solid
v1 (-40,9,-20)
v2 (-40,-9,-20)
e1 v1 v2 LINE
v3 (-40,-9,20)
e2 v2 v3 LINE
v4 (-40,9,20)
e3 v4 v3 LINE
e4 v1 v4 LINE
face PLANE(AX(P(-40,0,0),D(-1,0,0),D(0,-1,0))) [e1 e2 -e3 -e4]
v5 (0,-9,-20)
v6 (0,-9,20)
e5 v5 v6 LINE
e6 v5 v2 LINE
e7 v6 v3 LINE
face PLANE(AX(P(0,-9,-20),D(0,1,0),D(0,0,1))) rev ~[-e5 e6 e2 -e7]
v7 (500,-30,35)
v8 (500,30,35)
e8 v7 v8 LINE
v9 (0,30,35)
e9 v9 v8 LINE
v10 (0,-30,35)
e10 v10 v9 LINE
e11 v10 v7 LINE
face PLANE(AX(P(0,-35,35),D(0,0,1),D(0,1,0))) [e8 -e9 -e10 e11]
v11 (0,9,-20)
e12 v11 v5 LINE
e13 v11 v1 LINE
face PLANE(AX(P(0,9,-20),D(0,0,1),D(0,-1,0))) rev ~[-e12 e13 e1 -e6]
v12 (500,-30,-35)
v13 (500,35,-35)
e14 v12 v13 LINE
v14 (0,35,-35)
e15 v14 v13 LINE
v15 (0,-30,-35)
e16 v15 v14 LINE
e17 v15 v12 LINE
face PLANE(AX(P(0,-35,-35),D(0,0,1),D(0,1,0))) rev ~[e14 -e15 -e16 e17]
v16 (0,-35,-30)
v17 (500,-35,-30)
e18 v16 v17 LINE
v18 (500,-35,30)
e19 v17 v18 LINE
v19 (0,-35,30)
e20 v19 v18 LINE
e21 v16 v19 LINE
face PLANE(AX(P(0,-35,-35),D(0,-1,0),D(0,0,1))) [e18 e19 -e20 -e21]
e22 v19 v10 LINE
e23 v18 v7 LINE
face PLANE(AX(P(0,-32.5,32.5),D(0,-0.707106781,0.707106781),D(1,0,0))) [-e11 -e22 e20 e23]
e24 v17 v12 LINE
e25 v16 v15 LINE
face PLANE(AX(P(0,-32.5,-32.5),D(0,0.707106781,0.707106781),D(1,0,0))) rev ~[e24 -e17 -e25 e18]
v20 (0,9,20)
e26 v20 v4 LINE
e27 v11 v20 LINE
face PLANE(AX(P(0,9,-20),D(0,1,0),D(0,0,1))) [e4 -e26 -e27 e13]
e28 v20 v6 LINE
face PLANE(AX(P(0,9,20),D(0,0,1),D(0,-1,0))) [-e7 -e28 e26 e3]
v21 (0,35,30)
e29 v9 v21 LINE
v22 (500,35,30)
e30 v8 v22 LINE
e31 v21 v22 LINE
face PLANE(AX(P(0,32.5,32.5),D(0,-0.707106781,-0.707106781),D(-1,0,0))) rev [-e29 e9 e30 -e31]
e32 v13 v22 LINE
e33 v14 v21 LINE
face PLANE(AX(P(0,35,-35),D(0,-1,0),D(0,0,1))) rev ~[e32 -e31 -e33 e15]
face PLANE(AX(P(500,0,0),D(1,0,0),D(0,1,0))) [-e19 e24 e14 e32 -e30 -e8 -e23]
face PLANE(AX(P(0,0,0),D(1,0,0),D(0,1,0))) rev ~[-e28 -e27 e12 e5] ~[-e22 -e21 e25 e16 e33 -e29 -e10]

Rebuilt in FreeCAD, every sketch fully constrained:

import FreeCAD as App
import Part
import Sketcher
Q = App.Units.Quantity


def edges_at(feature, points):
    """Names of the edges that pass closest to the given points."""
    edges = feature.Shape.Edges
    near = lambda p: min(range(len(edges)), key=lambda i: edges[i].distToShape(Part.Vertex(*p))[0])
    return sorted({f"Edge{near(p) + 1}" for p in points})


def add_polygon(sketch, points):
    """Adds a closed chain of lines whose ends are joined by coincident constraints."""
    first, n = sketch.GeometryCount, len(points)
    for a, b in zip(points, points[1:] + points[:1]):
        sketch.addGeometry(Part.LineSegment(App.Vector(*a, 0), App.Vector(*b, 0)), False)
    for i in range(n):
        sketch.addConstraint(Sketcher.Constraint("Coincident", first + i, 2, first + (i + 1) % n, 1))

doc = App.newDocument("Part")
params = doc.addObject("Spreadsheet::Sheet", "Params")
for row, (alias, value) in enumerate([
    ("sketch1_width", "70 mm"),
    ("pad1_length", "500 mm"),
    ("sketch2_width", "18 mm"),
    ("sketch2_height", "40 mm"),
    ("pad2_length", "40 mm"),
    ("chamfer_size", "5 mm"),
], start=1):
    params.set(f"A{row}", alias)
    params.set(f"B{row}", "=" + value)
    params.setAlias(f"B{row}", alias)

body = doc.addObject("PartDesign::Body", "Body")

# Sketch on YZ plane
sketch1 = body.newObject("Sketcher::SketchObject", "Sketch")
sketch1.AttachmentSupport = (doc.getObject("YZ_Plane"), [""])
sketch1.MapMode = "FlatFace"
add_polygon(sketch1, [(-35, 35), (-35, -35), (35, -35), (35, 35)])  # lines 0-3
sketch1.addConstraint([
    Sketcher.Constraint("Vertical", 0),
    Sketcher.Constraint("Horizontal", 1),
    Sketcher.Constraint("Vertical", 2),
    Sketcher.Constraint("Horizontal", 3),
    Sketcher.Constraint("Symmetric", 0, 2, 2, 2, -1, 1),
    Sketcher.Constraint("Equal", 3, 0),
    Sketcher.Constraint("DistanceX", 1, 1, 1, 2, Q("70 mm")),
])
sketch1.setExpression("Constraints[10]", "Params.sketch1_width")
pad1 = body.newObject("PartDesign::Pad", "Pad")
pad1.Profile = sketch1
pad1.setExpression("Length", "Params.pad1_length")

# Sketch on YZ plane
sketch2 = body.newObject("Sketcher::SketchObject", "Sketch001")
sketch2.AttachmentSupport = (doc.getObject("YZ_Plane"), [""])
sketch2.MapMode = "FlatFace"
add_polygon(sketch2, [(9, 20), (9, -20), (-9, -20), (-9, 20)])  # lines 0-3
sketch2.addConstraint([
    Sketcher.Constraint("Vertical", 0),
    Sketcher.Constraint("Horizontal", 1),
    Sketcher.Constraint("Vertical", 2),
    Sketcher.Constraint("Horizontal", 3),
    Sketcher.Constraint("Symmetric", 0, 2, 2, 2, -1, 1),
    Sketcher.Constraint("DistanceX", 1, 2, 1, 1, Q("18 mm")),
    Sketcher.Constraint("DistanceY", 0, 2, 0, 1, Q("40 mm")),
])
sketch2.setExpression("Constraints[9]", "Params.sketch2_width")
sketch2.setExpression("Constraints[10]", "Params.sketch2_height")
pad2 = body.newObject("PartDesign::Pad", "Pad001")
pad2.Profile = sketch2
pad2.setExpression("Length", "Params.pad2_length")
pad2.Reversed = True
doc.recompute()

chamfer = body.newObject("PartDesign::Chamfer", "Chamfer")
chamfer.Base = (pad2, edges_at(pad2, [(250, -35, 35), (250, 35, 35), (250, -35, -35)]))
chamfer.setExpression("Size", "Params.chamfer_size")

doc.recompute()
